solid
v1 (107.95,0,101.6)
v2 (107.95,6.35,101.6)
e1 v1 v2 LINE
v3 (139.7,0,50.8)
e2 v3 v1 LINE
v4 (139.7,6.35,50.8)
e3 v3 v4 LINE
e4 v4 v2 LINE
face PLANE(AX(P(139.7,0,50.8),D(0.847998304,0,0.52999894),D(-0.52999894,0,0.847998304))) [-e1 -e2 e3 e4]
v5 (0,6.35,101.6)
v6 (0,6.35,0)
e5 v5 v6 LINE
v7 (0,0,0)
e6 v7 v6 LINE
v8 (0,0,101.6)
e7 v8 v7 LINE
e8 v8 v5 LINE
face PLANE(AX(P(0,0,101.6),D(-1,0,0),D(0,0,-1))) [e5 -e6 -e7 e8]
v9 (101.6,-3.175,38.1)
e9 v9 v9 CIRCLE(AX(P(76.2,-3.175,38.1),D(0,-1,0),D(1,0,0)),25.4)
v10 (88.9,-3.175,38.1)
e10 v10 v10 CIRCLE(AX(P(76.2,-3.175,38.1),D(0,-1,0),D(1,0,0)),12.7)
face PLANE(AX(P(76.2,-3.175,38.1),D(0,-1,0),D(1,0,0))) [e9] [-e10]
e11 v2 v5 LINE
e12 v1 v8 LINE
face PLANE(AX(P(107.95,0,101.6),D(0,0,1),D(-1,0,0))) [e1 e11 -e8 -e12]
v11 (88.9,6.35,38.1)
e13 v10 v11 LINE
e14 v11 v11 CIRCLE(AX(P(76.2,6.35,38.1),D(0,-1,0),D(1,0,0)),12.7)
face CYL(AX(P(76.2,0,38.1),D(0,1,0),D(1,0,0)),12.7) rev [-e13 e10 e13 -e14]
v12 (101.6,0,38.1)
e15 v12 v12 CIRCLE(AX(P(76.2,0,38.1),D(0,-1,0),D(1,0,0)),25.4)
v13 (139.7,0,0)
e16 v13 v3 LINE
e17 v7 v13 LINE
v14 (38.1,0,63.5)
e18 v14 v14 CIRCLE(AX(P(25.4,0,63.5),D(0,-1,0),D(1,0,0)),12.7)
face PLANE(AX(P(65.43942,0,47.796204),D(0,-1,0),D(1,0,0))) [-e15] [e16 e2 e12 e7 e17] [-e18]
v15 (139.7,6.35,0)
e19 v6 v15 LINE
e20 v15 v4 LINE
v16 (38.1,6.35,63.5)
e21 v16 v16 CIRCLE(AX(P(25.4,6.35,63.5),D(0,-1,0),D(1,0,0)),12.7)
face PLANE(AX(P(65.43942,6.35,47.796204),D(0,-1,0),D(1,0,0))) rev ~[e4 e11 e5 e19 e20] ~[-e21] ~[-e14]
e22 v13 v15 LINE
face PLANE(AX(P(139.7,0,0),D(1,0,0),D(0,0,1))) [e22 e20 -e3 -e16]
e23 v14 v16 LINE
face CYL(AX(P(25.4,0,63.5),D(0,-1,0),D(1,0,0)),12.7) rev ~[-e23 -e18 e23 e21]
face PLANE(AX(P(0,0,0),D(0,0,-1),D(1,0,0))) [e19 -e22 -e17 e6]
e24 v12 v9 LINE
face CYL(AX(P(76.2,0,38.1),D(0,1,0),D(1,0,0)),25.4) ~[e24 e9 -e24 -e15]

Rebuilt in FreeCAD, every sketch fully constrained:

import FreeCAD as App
import Part
import Sketcher
from FreeCAD import Vector
Q = App.Units.Quantity

doc = App.newDocument("Part")
body = doc.addObject("PartDesign::Body", "Body")

sketch1 = body.newObject("Sketcher::SketchObject", "Sketch")
sketch1.AttachmentSupport = (doc.getObject("XZ_Plane"), [""])
sketch1.MapMode = "FlatFace"
sketch1.addGeometry([
    Part.LineSegment(Vector(0, 0, 0), Vector(140, 0, 0)),
    Part.LineSegment(Vector(140, 0, 0), Vector(140, 51, 0)),
    Part.LineSegment(Vector(140, 51, 0), Vector(108, 102, 0)),
    Part.LineSegment(Vector(108, 102, 0), Vector(0, 102, 0)),
    Part.LineSegment(Vector(0, 102, 0), Vector(0, 0, 0)),
    Part.Circle(Vector(76, 38, 0), Vector(0, 0, 1), 13),
    Part.Circle(Vector(25, 64, 0), Vector(0, 0, 1), 13),
], False)
sketch1.addConstraint([
    Sketcher.Constraint("Coincident", 0, 2, 1, 1),
    Sketcher.Constraint("Coincident", 1, 2, 2, 1),
    Sketcher.Constraint("Coincident", 2, 2, 3, 1),
    Sketcher.Constraint("Coincident", 3, 2, 4, 1),
    Sketcher.Constraint("Coincident", 4, 2, 0, 1),
    Sketcher.Constraint("Horizontal", 0),
    Sketcher.Constraint("Vertical", 1),
    Sketcher.Constraint("Horizontal", 3),
    Sketcher.Constraint("Vertical", 4),
    Sketcher.Constraint("Coincident", 4, 2, -1, 1),
    Sketcher.Constraint("Equal", 5, 6),
    Sketcher.Constraint("Diameter", 5, Q("1 in")),
    Sketcher.Constraint("DistanceY", 1, 1, 1, 2, Q("2 in")),
    Sketcher.Constraint("DistanceY", 4, 2, 4, 1, Q("4 in")),
    Sketcher.Constraint("DistanceX", 0, 1, 0, 2, Q("5.5 in")),
    Sketcher.Constraint("DistanceX", -1, 1, 5, 3, Q("3 in")),
    Sketcher.Constraint("DistanceX", -1, 1, 6, 3, Q("1 in")),
    Sketcher.Constraint("DistanceY", 5, 3, 6, 3, Q("1 in")),
    Sketcher.Constraint("DistanceX", 3, 2, 3, 1, Q("4.25 in")),
    Sketcher.Constraint("DistanceY", -1, 1, 5, 3, Q("1.5 in")),
])
pad1 = body.newObject("PartDesign::Pad", "Pad")
pad1.Profile = sketch1
pad1.Length = Q("0.25 in")
pad1.Reversed = True

sketch2 = body.newObject("Sketcher::SketchObject", "Sketch001")
sketch2.AttachmentSupport = (doc.getObject("XZ_Plane"), [""])
sketch2.MapMode = "FlatFace"
sketch2.addGeometry([
    Part.Circle(Vector(76, 38, 0), Vector(0, 0, 1), 25),
    Part.Circle(Vector(76, 38, 0), Vector(0, 0, 1), 13),
], False)
sketch2.addConstraint([
    Sketcher.Constraint("Coincident", 1, 3, 0, 3),
    Sketcher.Constraint("Diameter", 0, Q("2 in")),
    Sketcher.Constraint("Diameter", 1, Q("1 in")),
    Sketcher.Constraint("DistanceX", -1, 1, 0, 3, Q("3 in")),
    Sketcher.Constraint("DistanceY", -1, 1, 0, 3, Q("1.5 in")),
])
pad2 = body.newObject("PartDesign::Pad", "Pad001")
pad2.Profile = sketch2
pad2.Length = Q("0.125 in")

doc.recompute()
